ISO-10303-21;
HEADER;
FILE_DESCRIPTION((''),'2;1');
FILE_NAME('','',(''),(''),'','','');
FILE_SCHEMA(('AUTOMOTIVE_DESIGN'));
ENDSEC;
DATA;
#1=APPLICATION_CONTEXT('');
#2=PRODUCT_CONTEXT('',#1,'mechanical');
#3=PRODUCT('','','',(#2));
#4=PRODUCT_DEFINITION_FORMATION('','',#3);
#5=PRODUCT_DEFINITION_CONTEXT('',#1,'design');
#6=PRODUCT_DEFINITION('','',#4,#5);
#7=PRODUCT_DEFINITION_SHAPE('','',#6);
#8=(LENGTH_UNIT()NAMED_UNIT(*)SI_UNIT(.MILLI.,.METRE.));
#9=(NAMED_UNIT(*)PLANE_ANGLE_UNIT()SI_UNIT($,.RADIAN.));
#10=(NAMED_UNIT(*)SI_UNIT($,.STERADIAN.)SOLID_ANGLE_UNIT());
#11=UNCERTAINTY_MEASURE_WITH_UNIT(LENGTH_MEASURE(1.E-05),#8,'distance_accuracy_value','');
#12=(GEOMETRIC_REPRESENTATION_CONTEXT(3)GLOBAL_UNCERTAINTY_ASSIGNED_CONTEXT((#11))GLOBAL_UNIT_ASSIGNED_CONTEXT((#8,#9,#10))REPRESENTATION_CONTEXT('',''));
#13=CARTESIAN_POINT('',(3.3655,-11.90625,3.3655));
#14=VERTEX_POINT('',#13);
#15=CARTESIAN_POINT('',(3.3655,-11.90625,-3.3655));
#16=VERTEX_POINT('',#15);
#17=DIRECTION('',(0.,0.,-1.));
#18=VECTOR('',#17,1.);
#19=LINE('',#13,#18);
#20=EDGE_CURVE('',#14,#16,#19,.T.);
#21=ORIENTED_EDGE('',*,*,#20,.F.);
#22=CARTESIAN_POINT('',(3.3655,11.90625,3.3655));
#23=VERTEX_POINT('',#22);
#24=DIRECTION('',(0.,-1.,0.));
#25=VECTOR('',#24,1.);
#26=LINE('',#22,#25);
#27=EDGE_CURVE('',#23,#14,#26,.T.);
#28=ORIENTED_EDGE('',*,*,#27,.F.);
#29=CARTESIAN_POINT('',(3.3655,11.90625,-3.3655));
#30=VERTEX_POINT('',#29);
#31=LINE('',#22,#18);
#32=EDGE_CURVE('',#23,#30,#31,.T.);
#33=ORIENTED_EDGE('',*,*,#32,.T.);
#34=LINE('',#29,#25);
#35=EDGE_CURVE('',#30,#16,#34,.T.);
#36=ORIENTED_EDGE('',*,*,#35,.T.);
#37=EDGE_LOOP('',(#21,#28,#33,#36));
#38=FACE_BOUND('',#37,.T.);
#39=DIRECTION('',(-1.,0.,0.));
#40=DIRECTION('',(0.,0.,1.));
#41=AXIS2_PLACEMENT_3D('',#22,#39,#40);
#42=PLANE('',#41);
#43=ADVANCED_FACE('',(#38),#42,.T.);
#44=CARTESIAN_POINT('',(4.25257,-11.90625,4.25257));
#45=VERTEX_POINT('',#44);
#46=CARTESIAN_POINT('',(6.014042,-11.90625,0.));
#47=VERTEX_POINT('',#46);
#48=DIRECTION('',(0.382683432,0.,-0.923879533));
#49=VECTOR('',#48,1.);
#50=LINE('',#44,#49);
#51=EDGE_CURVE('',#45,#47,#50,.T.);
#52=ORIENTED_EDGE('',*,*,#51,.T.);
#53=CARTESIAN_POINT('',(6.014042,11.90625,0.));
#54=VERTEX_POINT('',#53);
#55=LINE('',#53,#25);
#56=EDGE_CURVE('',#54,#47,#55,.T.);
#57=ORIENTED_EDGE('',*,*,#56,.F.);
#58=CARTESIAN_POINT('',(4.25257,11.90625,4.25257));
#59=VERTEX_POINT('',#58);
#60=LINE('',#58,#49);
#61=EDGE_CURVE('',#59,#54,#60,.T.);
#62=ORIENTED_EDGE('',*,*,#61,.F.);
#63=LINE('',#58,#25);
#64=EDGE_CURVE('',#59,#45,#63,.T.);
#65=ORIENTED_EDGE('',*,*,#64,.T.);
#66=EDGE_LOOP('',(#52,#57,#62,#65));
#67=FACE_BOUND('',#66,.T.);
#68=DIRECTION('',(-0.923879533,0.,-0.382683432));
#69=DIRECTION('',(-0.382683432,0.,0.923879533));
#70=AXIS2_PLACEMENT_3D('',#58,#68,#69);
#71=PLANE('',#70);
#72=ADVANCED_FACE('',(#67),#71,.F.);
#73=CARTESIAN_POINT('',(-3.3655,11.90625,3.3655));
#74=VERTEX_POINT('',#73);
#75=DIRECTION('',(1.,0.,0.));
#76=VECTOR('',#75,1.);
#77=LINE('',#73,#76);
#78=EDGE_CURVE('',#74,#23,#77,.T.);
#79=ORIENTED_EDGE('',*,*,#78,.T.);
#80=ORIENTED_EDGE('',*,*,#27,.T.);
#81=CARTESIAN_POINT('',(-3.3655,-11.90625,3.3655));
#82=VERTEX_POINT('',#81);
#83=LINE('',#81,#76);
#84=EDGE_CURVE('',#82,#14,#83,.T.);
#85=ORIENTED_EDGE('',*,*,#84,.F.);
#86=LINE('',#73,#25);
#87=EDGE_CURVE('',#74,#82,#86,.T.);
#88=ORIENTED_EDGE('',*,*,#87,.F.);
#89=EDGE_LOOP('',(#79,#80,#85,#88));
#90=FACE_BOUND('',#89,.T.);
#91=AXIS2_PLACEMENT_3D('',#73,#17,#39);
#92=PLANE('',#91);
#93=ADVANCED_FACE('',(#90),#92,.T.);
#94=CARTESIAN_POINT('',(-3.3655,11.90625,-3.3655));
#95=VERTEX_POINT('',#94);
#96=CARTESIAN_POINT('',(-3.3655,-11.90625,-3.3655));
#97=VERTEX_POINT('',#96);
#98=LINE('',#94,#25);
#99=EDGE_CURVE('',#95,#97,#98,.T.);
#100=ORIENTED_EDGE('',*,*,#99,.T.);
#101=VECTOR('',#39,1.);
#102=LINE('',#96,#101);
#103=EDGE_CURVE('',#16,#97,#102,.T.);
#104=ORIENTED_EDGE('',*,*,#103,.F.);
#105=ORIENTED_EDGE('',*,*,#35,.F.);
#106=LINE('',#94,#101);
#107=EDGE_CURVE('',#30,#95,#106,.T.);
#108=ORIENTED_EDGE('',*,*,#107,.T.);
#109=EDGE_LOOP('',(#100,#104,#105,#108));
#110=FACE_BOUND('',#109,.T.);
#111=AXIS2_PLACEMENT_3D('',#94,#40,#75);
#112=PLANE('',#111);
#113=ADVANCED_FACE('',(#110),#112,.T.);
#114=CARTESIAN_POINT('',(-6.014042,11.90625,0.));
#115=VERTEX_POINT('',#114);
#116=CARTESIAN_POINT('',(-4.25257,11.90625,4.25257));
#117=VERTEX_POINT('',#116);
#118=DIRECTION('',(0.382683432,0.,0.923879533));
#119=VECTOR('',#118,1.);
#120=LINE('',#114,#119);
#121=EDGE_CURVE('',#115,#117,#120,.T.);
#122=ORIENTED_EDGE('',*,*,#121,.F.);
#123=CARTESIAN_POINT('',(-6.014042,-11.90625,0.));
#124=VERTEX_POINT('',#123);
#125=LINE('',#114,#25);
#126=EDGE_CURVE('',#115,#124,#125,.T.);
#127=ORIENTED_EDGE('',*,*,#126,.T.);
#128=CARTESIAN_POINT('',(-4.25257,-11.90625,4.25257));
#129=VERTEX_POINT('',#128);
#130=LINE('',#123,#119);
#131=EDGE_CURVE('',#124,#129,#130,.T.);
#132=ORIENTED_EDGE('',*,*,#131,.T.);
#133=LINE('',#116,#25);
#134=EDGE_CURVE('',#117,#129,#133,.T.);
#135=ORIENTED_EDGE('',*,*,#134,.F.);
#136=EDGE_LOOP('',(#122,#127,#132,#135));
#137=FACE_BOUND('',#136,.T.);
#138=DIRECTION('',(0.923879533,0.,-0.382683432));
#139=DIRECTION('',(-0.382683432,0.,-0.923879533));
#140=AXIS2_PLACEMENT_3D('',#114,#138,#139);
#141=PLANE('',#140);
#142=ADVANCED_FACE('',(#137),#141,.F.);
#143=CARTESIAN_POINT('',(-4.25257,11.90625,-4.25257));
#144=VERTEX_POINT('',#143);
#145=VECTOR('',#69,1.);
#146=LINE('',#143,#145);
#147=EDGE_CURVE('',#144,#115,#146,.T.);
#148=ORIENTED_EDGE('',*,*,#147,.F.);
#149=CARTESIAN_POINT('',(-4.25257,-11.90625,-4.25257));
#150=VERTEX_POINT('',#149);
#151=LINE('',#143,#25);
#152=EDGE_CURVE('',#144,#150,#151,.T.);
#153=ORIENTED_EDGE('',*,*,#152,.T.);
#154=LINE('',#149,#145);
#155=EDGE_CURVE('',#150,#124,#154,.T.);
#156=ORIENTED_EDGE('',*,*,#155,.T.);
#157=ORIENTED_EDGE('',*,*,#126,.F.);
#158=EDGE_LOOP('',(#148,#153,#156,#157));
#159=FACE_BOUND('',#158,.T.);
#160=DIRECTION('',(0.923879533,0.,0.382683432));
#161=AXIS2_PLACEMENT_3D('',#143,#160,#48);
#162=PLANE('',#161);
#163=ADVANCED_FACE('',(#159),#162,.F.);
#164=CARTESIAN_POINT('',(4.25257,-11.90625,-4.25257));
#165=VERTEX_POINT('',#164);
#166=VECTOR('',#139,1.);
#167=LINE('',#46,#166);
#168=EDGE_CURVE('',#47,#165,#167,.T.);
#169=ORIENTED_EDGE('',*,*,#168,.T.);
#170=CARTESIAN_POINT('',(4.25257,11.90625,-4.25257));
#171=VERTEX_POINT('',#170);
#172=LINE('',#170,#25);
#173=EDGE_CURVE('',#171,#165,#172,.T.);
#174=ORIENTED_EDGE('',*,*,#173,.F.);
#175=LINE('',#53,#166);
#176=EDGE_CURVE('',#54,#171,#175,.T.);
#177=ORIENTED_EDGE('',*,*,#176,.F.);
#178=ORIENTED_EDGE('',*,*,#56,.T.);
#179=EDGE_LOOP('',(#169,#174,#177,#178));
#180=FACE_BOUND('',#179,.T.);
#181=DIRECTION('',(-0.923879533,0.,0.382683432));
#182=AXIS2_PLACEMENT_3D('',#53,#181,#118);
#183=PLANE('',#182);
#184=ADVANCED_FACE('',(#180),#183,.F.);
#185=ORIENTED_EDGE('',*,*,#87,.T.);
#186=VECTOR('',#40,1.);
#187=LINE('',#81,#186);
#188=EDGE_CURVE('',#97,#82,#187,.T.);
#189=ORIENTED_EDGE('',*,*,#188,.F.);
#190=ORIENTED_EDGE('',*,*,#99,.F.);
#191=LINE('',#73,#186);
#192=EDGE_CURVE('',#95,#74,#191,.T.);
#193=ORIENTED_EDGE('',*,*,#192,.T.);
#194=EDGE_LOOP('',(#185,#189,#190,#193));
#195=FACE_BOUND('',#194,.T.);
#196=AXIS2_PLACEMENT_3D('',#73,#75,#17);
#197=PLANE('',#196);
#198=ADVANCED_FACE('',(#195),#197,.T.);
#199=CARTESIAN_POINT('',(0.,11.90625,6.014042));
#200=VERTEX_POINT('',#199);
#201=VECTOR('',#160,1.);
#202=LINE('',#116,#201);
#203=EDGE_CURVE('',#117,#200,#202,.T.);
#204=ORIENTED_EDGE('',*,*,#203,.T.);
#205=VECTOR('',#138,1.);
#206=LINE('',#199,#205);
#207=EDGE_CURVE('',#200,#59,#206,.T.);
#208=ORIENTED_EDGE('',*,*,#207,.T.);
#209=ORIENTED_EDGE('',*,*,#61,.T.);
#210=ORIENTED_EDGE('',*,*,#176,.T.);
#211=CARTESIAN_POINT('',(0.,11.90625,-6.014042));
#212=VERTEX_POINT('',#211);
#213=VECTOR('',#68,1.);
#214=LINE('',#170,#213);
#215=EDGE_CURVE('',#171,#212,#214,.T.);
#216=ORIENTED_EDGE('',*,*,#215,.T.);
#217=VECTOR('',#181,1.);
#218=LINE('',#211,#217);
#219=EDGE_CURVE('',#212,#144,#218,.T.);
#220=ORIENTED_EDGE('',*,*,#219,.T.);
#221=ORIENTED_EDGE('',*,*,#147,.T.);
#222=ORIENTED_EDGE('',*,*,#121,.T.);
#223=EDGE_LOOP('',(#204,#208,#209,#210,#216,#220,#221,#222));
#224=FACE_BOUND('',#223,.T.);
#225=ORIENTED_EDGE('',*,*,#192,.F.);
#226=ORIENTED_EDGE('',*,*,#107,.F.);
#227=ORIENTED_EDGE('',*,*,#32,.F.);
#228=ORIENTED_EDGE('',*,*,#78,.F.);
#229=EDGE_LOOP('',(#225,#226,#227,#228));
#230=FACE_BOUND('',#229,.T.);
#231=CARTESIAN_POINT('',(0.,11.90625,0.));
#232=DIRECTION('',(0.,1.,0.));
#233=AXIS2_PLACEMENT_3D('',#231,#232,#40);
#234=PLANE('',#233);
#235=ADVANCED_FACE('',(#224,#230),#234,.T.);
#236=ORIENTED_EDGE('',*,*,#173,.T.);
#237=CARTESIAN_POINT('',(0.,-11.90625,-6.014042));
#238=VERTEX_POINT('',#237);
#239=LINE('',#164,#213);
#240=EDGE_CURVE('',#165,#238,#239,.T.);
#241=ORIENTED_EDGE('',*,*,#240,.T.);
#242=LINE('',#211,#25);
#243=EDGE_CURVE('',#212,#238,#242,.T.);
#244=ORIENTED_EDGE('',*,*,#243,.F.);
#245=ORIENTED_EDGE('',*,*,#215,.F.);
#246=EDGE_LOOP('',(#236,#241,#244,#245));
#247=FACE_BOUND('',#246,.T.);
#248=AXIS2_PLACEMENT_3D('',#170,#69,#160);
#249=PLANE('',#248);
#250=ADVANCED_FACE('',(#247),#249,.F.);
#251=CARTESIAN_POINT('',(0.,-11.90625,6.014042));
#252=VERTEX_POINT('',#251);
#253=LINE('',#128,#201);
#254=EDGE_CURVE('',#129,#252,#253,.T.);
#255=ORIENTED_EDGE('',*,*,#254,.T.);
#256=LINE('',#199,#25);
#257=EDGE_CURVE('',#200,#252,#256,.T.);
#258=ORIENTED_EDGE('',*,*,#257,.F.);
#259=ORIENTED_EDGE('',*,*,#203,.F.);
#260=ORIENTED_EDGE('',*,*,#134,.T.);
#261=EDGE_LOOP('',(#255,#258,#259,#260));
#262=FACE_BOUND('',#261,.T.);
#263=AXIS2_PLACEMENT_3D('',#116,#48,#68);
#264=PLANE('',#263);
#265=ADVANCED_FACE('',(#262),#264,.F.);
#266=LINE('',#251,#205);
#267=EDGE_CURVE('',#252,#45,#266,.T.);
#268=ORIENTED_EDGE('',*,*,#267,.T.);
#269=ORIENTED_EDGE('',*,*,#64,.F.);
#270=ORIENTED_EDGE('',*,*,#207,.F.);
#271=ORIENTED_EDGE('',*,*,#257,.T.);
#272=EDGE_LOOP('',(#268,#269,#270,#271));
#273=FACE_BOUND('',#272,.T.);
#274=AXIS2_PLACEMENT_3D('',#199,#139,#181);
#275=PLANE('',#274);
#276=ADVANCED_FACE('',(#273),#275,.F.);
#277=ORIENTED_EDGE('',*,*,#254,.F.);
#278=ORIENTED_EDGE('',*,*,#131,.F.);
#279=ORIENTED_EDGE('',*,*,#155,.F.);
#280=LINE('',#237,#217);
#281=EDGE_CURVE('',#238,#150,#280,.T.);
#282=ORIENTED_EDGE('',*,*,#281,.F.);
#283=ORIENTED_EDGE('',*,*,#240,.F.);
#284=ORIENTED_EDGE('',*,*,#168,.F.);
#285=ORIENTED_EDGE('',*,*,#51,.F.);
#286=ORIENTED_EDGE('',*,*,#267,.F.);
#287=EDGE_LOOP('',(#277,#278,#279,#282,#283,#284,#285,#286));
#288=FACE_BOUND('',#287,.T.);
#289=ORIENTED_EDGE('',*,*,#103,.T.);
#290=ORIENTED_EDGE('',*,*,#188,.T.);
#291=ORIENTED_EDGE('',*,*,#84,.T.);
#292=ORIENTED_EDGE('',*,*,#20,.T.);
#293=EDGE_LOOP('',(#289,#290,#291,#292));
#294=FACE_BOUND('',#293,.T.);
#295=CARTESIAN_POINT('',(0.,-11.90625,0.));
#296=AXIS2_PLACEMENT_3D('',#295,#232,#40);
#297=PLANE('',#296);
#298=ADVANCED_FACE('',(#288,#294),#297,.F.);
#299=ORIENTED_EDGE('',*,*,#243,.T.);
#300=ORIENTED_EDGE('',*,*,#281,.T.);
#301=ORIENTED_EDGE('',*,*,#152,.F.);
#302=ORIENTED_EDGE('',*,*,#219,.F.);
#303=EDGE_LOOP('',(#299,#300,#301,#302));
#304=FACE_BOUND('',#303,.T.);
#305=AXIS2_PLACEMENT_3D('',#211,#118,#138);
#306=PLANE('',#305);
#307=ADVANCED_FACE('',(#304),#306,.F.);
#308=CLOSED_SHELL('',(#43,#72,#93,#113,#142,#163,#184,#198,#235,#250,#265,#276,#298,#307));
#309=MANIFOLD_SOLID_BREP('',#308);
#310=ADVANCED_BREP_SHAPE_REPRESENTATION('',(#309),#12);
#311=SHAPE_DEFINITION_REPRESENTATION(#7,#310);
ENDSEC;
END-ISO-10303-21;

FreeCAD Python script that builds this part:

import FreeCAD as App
import Part
import Sketcher
from FreeCAD import Vector
Q = App.Units.Quantity


def add_polygon(sketch, points):
    """Adds a closed chain of lines whose ends are joined by coincident constraints."""
    first, n = sketch.GeometryCount, len(points)
    for a, b in zip(points, points[1:] + points[:1]):
        sketch.addGeometry(Part.LineSegment(App.Vector(*a, 0), App.Vector(*b, 0)), False)
    for i in range(n):
        sketch.addConstraint(Sketcher.Constraint("Coincident", first + i, 2, first + (i + 1) % n, 1))

doc = App.newDocument("Part")
params = doc.addObject("Spreadsheet::Sheet", "Params")
for row, (alias, value) in enumerate([
    ("sketch1_width", "0.265 in"),
    ("pad1_length", "0.9375 in"),
], start=1):
    params.set(f"A{row}", alias)
    params.set(f"B{row}", "=" + value)
    params.setAlias(f"B{row}", alias)

body = doc.addObject("PartDesign::Body", "Body")

sketch1 = body.newObject("Sketcher::SketchObject", "Sketch")
sketch1.AttachmentSupport = (doc.getObject("XZ_Plane"), [""])
sketch1.MapMode = "FlatFace"
add_polygon(sketch1, [(6, 0), (4.3, -4.3), (0, -6), (-4.3, -4.3), (-6, 0), (-4.3, 4.3), (0, 6), (4.3, 4.3)])
add_polygon(sketch1, [(3.4, 3.4), (-3.4, 3.4), (-3.4, -3.4), (3.4, -3.4)])
sketch1.addConstraint([
    Sketcher.Constraint("Horizontal", 8),
    Sketcher.Constraint("Vertical", 9),
    Sketcher.Constraint("Horizontal", 10),
    Sketcher.Constraint("Vertical", 11),
    Sketcher.Constraint("Symmetric", 0, 2, 4, 2, -1, 1),
    Sketcher.Constraint("Symmetric", 1, 2, 5, 2, -1, 1),
    Sketcher.Constraint("Symmetric", 2, 2, 6, 2, -1, 1),
    Sketcher.Constraint("Symmetric", 3, 2, 7, 2, -1, 1),
    Sketcher.Constraint("Symmetric", 8, 2, 10, 2, -1, 1),
    Sketcher.Constraint("Symmetric", 0, 2, 2, 2, -2),
    Sketcher.Constraint("PointOnObject", 1, 2, -2),
    Sketcher.Constraint("PointOnObject", 3, 2, -1),
    Sketcher.Constraint("Perpendicular", 0, 2),
    Sketcher.Constraint("Equal", 10, 9),
    Sketcher.Constraint("Equal", 0, 1),
    Sketcher.Constraint("Angle", 0, Q("-112.5 deg")),
    Sketcher.Constraint("DistanceX", 8, 2, 8, 1, Q("0.265 in")),
    Sketcher.Constraint("Distance", 0, 4.602948),
])
sketch1.setExpression("Constraints[28]", "Params.sketch1_width")
pad1 = body.newObject("PartDesign::Pad", "Pad")
pad1.Profile = sketch1
pad1.setExpression("Length", "Params.pad1_length")
pad1.Midplane = True

doc.recompute()
